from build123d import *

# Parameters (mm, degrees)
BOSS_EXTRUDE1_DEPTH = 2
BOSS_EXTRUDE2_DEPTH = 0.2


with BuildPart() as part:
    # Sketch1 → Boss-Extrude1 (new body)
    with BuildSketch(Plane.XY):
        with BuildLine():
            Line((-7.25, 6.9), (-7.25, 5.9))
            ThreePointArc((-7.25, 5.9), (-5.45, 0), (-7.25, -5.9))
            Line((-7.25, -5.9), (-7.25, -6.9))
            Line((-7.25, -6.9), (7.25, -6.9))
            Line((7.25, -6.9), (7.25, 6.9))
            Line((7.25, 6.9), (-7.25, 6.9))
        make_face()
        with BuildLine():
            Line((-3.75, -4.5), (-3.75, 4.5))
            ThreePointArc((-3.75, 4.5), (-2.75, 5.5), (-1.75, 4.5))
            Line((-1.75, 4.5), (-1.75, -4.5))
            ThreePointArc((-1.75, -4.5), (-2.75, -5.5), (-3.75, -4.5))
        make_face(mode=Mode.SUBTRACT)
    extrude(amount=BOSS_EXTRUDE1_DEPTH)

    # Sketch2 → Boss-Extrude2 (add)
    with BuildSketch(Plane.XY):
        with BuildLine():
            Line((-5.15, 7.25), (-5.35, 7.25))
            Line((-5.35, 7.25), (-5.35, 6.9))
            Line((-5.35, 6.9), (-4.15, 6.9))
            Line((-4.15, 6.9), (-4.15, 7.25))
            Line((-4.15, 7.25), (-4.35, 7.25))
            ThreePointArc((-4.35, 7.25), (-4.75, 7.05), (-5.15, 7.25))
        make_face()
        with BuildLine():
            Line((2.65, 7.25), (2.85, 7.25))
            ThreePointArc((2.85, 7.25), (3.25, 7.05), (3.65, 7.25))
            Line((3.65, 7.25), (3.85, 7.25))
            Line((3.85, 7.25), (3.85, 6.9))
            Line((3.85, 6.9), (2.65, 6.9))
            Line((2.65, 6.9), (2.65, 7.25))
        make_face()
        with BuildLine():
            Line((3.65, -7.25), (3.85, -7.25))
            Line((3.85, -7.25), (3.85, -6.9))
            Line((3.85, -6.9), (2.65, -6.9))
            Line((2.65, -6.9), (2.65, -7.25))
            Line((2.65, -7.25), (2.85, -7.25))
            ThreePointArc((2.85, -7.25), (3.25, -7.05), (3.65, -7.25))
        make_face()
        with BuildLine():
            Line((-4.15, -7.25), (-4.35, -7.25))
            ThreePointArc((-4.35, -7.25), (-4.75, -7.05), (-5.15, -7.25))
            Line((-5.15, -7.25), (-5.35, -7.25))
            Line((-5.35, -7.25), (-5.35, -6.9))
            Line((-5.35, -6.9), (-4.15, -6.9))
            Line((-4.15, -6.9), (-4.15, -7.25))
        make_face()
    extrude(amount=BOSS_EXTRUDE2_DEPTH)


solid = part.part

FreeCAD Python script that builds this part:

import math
import FreeCAD as App
import Part
import Sketcher

V = App.Vector

doc = App.newDocument("Part")
body = doc.addObject("PartDesign::Body", "Body")

sketch1 = doc.addObject("Sketcher::SketchObject", "Sketch")
body.addObject(sketch1)
sketch1.AttachmentSupport = (doc.XY_Plane, [""])
sketch1.MapMode = "FlatFace"
sketch1.addGeometry([
    Part.LineSegment(V(-7.2, 6.9, 0), V(-7.2, 5.9, 0)),
    Part.ArcOfCircle(Part.Circle(V(-16, 0, 0), V(0, 0, 1), 10.6), math.radians(-34), math.radians(34)),
    Part.LineSegment(V(-7.2, -5.9, 0), V(-7.2, -6.9, 0)),
    Part.LineSegment(V(-7.2, -6.9, 0), V(7.2, -6.9, 0)),
    Part.LineSegment(V(7.2, -6.9, 0), V(7.2, 6.9, 0)),
    Part.LineSegment(V(7.2, 6.9, 0), V(-7.2, 6.9, 0)),
    Part.ArcOfCircle(Part.Circle(V(-2.8, -4.5, 0), V(0, 0, 1), 1), math.radians(180), math.radians(360)),
    Part.LineSegment(V(-3.8, -4.5, 0), V(-3.8, 4.5, 0)),
    Part.ArcOfCircle(Part.Circle(V(-2.8, 4.5, 0), V(0, 0, 1), 1), math.radians(0), math.radians(180)),
    Part.LineSegment(V(-1.8, 4.5, 0), V(-1.8, -4.5, 0)),
], False)
sketch1.addConstraint([
    Sketcher.Constraint("Coincident", 0, 2, 1, 2),
    Sketcher.Constraint("Coincident", 1, 1, 2, 1),
    Sketcher.Constraint("Coincident", 2, 2, 3, 1),
    Sketcher.Constraint("Coincident", 3, 2, 4, 1),
    Sketcher.Constraint("Coincident", 4, 2, 5, 1),
    Sketcher.Constraint("Coincident", 5, 2, 0, 1),
    Sketcher.Constraint("Tangent", 6, 1, 7, 1),
    Sketcher.Constraint("Tangent", 7, 2, 8, 2),
    Sketcher.Constraint("Tangent", 8, 1, 9, 1),
    Sketcher.Constraint("Tangent", 9, 2, 6, 2),
    Sketcher.Constraint("Vertical", 0),
    Sketcher.Constraint("Vertical", 2),
    Sketcher.Constraint("Horizontal", 3),
    Sketcher.Constraint("Vertical", 4),
    Sketcher.Constraint("Horizontal", 5),
    Sketcher.Constraint("Vertical", 7),
    Sketcher.Constraint("Vertical", 9),
    Sketcher.Constraint("Symmetric", 2, 2, 4, 2, -1, 1),
    Sketcher.Constraint("Symmetric", 0, 2, 1, 1, -1),
    Sketcher.Constraint("Radius", 6, 1.0),
    Sketcher.Constraint("DistanceY", 0, 2, 0, 1, 1.0),
    Sketcher.Constraint("DistanceY", 7, 1, 7, 2, 9.0),
    Sketcher.Constraint("DistanceX", 3, 1, 3, 2, 14.5),
    Sketcher.Constraint("DistanceY", 4, 1, 4, 2, 13.8),
    Sketcher.Constraint("DistanceX", 6, 3, 3, 2, 10.0),
    Sketcher.Constraint("DistanceY", 6, 3, -1, 1, 4.5),
    Sketcher.Constraint("Radius", 1, 10.569444),
])
pad1 = doc.addObject("PartDesign::Pad", "Pad")
body.addObject(pad1)
pad1.Profile = sketch1
pad1.Length = 2

sketch2 = doc.addObject("Sketcher::SketchObject", "Sketch001")
body.addObject(sketch2)
sketch2.AttachmentSupport = (doc.XY_Plane, [""])
sketch2.MapMode = "FlatFace"
sketch2.addGeometry([
    Part.LineSegment(V(-5.15, 7.25, 0), V(-5.35, 7.25, 0)),
    Part.LineSegment(V(-5.35, 7.25, 0), V(-5.35, 6.9, 0)),
    Part.LineSegment(V(-5.35, 6.9, 0), V(-4.15, 6.9, 0)),
    Part.LineSegment(V(-4.15, 6.9, 0), V(-4.15, 7.25, 0)),
    Part.LineSegment(V(-4.15, 7.25, 0), V(-4.35, 7.25, 0)),
    Part.ArcOfCircle(Part.Circle(V(-4.75, 7.55, 0), V(0, 0, 1), 0.5), math.radians(-143), math.radians(-37)),
    Part.LineSegment(V(2.85, 7.25, 0), V(2.65, 7.25, 0)),
    Part.LineSegment(V(2.65, 7.25, 0), V(2.65, 6.9, 0)),
    Part.LineSegment(V(2.65, 6.9, 0), V(3.85, 6.9, 0)),
    Part.LineSegment(V(3.85, 6.9, 0), V(3.85, 7.25, 0)),
    Part.LineSegment(V(3.85, 7.25, 0), V(3.65, 7.25, 0)),
    Part.ArcOfCircle(Part.Circle(V(3.25, 7.55, 0), V(0, 0, 1), 0.5), math.radians(-143), math.radians(-37)),
    Part.LineSegment(V(3.65, -7.25, 0), V(3.85, -7.25, 0)),
    Part.LineSegment(V(3.85, -7.25, 0), V(3.85, -6.9, 0)),
    Part.LineSegment(V(3.85, -6.9, 0), V(2.65, -6.9, 0)),
    Part.LineSegment(V(2.65, -6.9, 0), V(2.65, -7.25, 0)),
    Part.LineSegment(V(2.65, -7.25, 0), V(2.85, -7.25, 0)),
    Part.ArcOfCircle(Part.Circle(V(3.25, -7.55, 0), V(0, 0, 1), 0.5), math.radians(37), math.radians(143)),
    Part.LineSegment(V(-4.35, -7.25, 0), V(-4.15, -7.25, 0)),
    Part.LineSegment(V(-4.15, -7.25, 0), V(-4.15, -6.9, 0)),
    Part.LineSegment(V(-4.15, -6.9, 0), V(-5.35, -6.9, 0)),
    Part.LineSegment(V(-5.35, -6.9, 0), V(-5.35, -7.25, 0)),
    Part.LineSegment(V(-5.35, -7.25, 0), V(-5.15, -7.25, 0)),
    Part.ArcOfCircle(Part.Circle(V(-4.75, -7.55, 0), V(0, 0, 1), 0.5), math.radians(37), math.radians(143)),
], False)
sketch2.addConstraint([
    Sketcher.Constraint("Coincident", 0, 2, 1, 1),
    Sketcher.Constraint("Coincident", 1, 2, 2, 1),
    Sketcher.Constraint("Coincident", 2, 2, 3, 1),
    Sketcher.Constraint("Coincident", 3, 2, 4, 1),
    Sketcher.Constraint("Coincident", 4, 2, 5, 2),
    Sketcher.Constraint("Coincident", 5, 1, 0, 1),
    Sketcher.Constraint("Coincident", 6, 2, 7, 1),
    Sketcher.Constraint("Coincident", 7, 2, 8, 1),
    Sketcher.Constraint("Coincident", 8, 2, 9, 1),
    Sketcher.Constraint("Coincident", 9, 2, 10, 1),
    Sketcher.Constraint("Coincident", 10, 2, 11, 2),
    Sketcher.Constraint("Coincident", 11, 1, 6, 1),
    Sketcher.Constraint("Coincident", 12, 2, 13, 1),
    Sketcher.Constraint("Coincident", 13, 2, 14, 1),
    Sketcher.Constraint("Coincident", 14, 2, 15, 1),
    Sketcher.Constraint("Coincident", 15, 2, 16, 1),
    Sketcher.Constraint("Coincident", 16, 2, 17, 2),
    Sketcher.Constraint("Coincident", 17, 1, 12, 1),
    Sketcher.Constraint("Coincident", 18, 2, 19, 1),
    Sketcher.Constraint("Coincident", 19, 2, 20, 1),
    Sketcher.Constraint("Coincident", 20, 2, 21, 1),
    Sketcher.Constraint("Coincident", 21, 2, 22, 1),
    Sketcher.Constraint("Coincident", 22, 2, 23, 2),
    Sketcher.Constraint("Coincident", 23, 1, 18, 1),
    Sketcher.Constraint("Horizontal", 0),
    Sketcher.Constraint("Vertical", 1),
    Sketcher.Constraint("Horizontal", 2),
    Sketcher.Constraint("Vertical", 3),
    Sketcher.Constraint("Horizontal", 4),
    Sketcher.Constraint("Horizontal", 6),
    Sketcher.Constraint("Vertical", 7),
    Sketcher.Constraint("Horizontal", 8),
    Sketcher.Constraint("Vertical", 9),
    Sketcher.Constraint("Horizontal", 10),
    Sketcher.Constraint("Horizontal", 12),
    Sketcher.Constraint("Vertical", 13),
    Sketcher.Constraint("Horizontal", 14),
    Sketcher.Constraint("Vertical", 15),
    Sketcher.Constraint("Horizontal", 16),
    Sketcher.Constraint("Horizontal", 18),
    Sketcher.Constraint("Vertical", 19),
    Sketcher.Constraint("Horizontal", 20),
    Sketcher.Constraint("Vertical", 21),
    Sketcher.Constraint("Horizontal", 22),
    Sketcher.Constraint("Equal", 5, 11),
    Sketcher.Constraint("Equal", 11, 17),
    Sketcher.Constraint("Equal", 17, 23),
    Sketcher.Constraint("Symmetric", 11, 3, 17, 3, -1),
    Sketcher.Constraint("Symmetric", 5, 3, 23, 3, -1),
    Sketcher.Constraint("Symmetric", 9, 2, 12, 2, -1),
    Sketcher.Constraint("Symmetric", 7, 2, 14, 2, -1),
    Sketcher.Constraint("Symmetric", 3, 2, 18, 2, -1),
    Sketcher.Constraint("Symmetric", 1, 2, 20, 2, -1),
    Sketcher.Constraint("Horizontal", 5, 3, 11, 3),
    Sketcher.Constraint("Horizontal", 0, 2, 3, 2),
    Sketcher.Constraint("Horizontal", 5, 1, 6, 2),
    Sketcher.Constraint("Horizontal", 2, 2, 7, 2),
    Sketcher.Constraint("Horizontal", 6, 2, 9, 2),
    Sketcher.Constraint("Horizontal", 12, 2, 15, 2),
    Sketcher.Constraint("Horizontal", 18, 2, 21, 2),
    Sketcher.Constraint("Equal", 0, 4),
    Sketcher.Constraint("Equal", 4, 6),
    Sketcher.Constraint("Equal", 2, 8),
    Sketcher.Constraint("Radius", 5, 0.5),
    Sketcher.Constraint("DistanceX", 0, 2, 0, 1, 0.2),
    Sketcher.Constraint("DistanceX", 2, 1, 2, 2, 1.2),
    Sketcher.Constraint("DistanceX", 5, 3, 11, 3, 8.0),
    Sketcher.Constraint("DistanceY", 1, 2, 1, 1, 0.35),
    Sketcher.Constraint("DistanceY", -1, 1, 1, 2, 6.9),
    Sketcher.Constraint("DistanceX", 5, 3, -1, 1, 4.75),
])
pad2 = doc.addObject("PartDesign::Pad", "Pad001")
body.addObject(pad2)
pad2.Profile = sketch2
pad2.Length = 0.2

doc.recompute()
